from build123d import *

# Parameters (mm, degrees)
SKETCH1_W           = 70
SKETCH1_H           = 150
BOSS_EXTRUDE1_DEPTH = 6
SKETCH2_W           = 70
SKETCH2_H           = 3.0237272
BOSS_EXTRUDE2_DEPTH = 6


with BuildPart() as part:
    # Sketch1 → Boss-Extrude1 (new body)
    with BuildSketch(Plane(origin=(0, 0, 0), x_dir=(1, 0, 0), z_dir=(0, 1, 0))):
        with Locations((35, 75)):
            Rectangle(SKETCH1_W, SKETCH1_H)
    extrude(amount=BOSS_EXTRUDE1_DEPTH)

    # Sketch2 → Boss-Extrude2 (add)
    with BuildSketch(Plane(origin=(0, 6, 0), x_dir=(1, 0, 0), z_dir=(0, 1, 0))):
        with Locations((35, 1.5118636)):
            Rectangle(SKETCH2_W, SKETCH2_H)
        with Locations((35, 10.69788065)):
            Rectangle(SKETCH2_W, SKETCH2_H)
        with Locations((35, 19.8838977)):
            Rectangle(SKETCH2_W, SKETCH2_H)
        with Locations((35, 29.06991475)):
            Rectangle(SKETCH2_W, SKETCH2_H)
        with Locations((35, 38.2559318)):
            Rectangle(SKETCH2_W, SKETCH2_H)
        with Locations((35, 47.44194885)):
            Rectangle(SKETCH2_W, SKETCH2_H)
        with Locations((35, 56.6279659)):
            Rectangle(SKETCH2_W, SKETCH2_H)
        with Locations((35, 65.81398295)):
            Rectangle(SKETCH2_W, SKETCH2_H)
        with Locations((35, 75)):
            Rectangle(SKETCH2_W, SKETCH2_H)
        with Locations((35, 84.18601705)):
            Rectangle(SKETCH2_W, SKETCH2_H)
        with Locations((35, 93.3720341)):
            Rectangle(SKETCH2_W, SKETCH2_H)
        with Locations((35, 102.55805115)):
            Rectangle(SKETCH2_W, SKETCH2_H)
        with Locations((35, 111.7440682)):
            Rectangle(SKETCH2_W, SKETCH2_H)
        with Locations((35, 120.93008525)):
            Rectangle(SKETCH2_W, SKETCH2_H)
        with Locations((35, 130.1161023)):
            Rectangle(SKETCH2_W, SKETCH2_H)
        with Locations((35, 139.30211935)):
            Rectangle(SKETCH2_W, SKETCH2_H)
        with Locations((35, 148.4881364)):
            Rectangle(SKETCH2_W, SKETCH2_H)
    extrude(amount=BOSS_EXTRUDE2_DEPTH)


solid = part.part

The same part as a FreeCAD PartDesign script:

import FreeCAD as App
import Part
import Sketcher

V = App.Vector

doc = App.newDocument("Part")
body = doc.addObject("PartDesign::Body", "Body")

sketch1 = doc.addObject("Sketcher::SketchObject", "Sketch")
body.addObject(sketch1)
sketch1.AttachmentSupport = (doc.XZ_Plane, [""])
sketch1.MapMode = "FlatFace"
sketch1.addGeometry([
    Part.LineSegment(V(0, -150, 0), V(0, 0, 0)),
    Part.LineSegment(V(0, 0, 0), V(70, 0, 0)),
    Part.LineSegment(V(70, 0, 0), V(70, -150, 0)),
    Part.LineSegment(V(70, -150, 0), V(0, -150, 0)),
], False)
sketch1.addConstraint([
    Sketcher.Constraint("Coincident", 0, 2, 1, 1),
    Sketcher.Constraint("Coincident", 1, 2, 2, 1),
    Sketcher.Constraint("Coincident", 2, 2, 3, 1),
    Sketcher.Constraint("Coincident", 3, 2, 0, 1),
    Sketcher.Constraint("Vertical", 0),
    Sketcher.Constraint("Horizontal", 1),
    Sketcher.Constraint("Vertical", 2),
    Sketcher.Constraint("Horizontal", 3),
    Sketcher.Constraint("Coincident", 0, 2, -1, 1),
    Sketcher.Constraint("DistanceX", 1, 1, 1, 2, 70.0),
    Sketcher.Constraint("DistanceY", 0, 1, 0, 2, 150.0),
])
pad1 = doc.addObject("PartDesign::Pad", "Pad")
body.addObject(pad1)
pad1.Profile = sketch1
pad1.Length = 6
pad1.Reversed = True

sketch2 = doc.addObject("Sketcher::SketchObject", "Sketch001")
body.addObject(sketch2)
sketch2.AttachmentSupport = (doc.XZ_Plane, [""])
sketch2.MapMode = "FlatFace"
sketch2.AttachmentOffset = App.Placement(V(0, 0, -6), App.Rotation())
sketch2.addGeometry([
    Part.LineSegment(V(0, -3.023727, 0), V(0, 0, 0)),
    Part.LineSegment(V(0, 0, 0), V(70, 0, 0)),
    Part.LineSegment(V(70, 0, 0), V(70, -3.023727, 0)),
    Part.LineSegment(V(70, -3.023727, 0), V(0, -3.023727, 0)),
    Part.LineSegment(V(0, -12.209744, 0), V(0, -9.186017, 0)),
    Part.LineSegment(V(0, -9.186017, 0), V(70, -9.186017, 0)),
    Part.LineSegment(V(70, -9.186017, 0), V(70, -12.209744, 0)),
    Part.LineSegment(V(70, -12.209744, 0), V(0, -12.209744, 0)),
    Part.LineSegment(V(0, -21.395761, 0), V(0, -18.372034, 0)),
    Part.LineSegment(V(0, -18.372034, 0), V(70, -18.372034, 0)),
    Part.LineSegment(V(70, -18.372034, 0), V(70, -21.395761, 0)),
    Part.LineSegment(V(70, -21.395761, 0), V(0, -21.395761, 0)),
    Part.LineSegment(V(0, -30.581778, 0), V(0, -27.558051, 0)),
    Part.LineSegment(V(0, -27.558051, 0), V(70, -27.558051, 0)),
    Part.LineSegment(V(70, -27.558051, 0), V(70, -30.581778, 0)),
    Part.LineSegment(V(70, -30.581778, 0), V(0, -30.581778, 0)),
    Part.LineSegment(V(0, -39.767795, 0), V(0, -36.744068, 0)),
    Part.LineSegment(V(0, -36.744068, 0), V(70, -36.744068, 0)),
    Part.LineSegment(V(70, -36.744068, 0), V(70, -39.767795, 0)),
    Part.LineSegment(V(70, -39.767795, 0), V(0, -39.767795, 0)),
    Part.LineSegment(V(0, -48.953812, 0), V(0, -45.930085, 0)),
    Part.LineSegment(V(0, -45.930085, 0), V(70, -45.930085, 0)),
    Part.LineSegment(V(70, -45.930085, 0), V(70, -48.953812, 0)),
    Part.LineSegment(V(70, -48.953812, 0), V(0, -48.953812, 0)),
    Part.LineSegment(V(0, -58.139829, 0), V(0, -55.116102, 0)),
    Part.LineSegment(V(0, -55.116102, 0), V(70, -55.116102, 0)),
    Part.LineSegment(V(70, -55.116102, 0), V(70, -58.139829, 0)),
    Part.LineSegment(V(70, -58.139829, 0), V(0, -58.139829, 0)),
    Part.LineSegment(V(0, -67.325847, 0), V(0, -64.302119, 0)),
    Part.LineSegment(V(0, -64.302119, 0), V(70, -64.302119, 0)),
    Part.LineSegment(V(70, -64.302119, 0), V(70, -67.325847, 0)),
    Part.LineSegment(V(70, -67.325847, 0), V(0, -67.325847, 0)),
    Part.LineSegment(V(0, -76.511864, 0), V(0, -73.488136, 0)),
    Part.LineSegment(V(0, -73.488136, 0), V(70, -73.488136, 0)),
    Part.LineSegment(V(70, -73.488136, 0), V(70, -76.511864, 0)),
    Part.LineSegment(V(70, -76.511864, 0), V(0, -76.511864, 0)),
    Part.LineSegment(V(0, -85.697881, 0), V(0, -82.674153, 0)),
    Part.LineSegment(V(0, -82.674153, 0), V(70, -82.674153, 0)),
    Part.LineSegment(V(70, -82.674153, 0), V(70, -85.697881, 0)),
    Part.LineSegment(V(70, -85.697881, 0), V(0, -85.697881, 0)),
    Part.LineSegment(V(0, -94.883898, 0), V(0, -91.86017, 0)),
    Part.LineSegment(V(0, -91.86017, 0), V(70, -91.86017, 0)),
    Part.LineSegment(V(70, -91.86017, 0), V(70, -94.883898, 0)),
    Part.LineSegment(V(70, -94.883898, 0), V(0, -94.883898, 0)),
    Part.LineSegment(V(0, -104.069915, 0), V(0, -101.046188, 0)),
    Part.LineSegment(V(0, -101.046188, 0), V(70, -101.046188, 0)),
    Part.LineSegment(V(70, -101.046188, 0), V(70, -104.069915, 0)),
    Part.LineSegment(V(70, -104.069915, 0), V(0, -104.069915, 0)),
    Part.LineSegment(V(0, -113.255932, 0), V(0, -110.232205, 0)),
    Part.LineSegment(V(0, -110.232205, 0), V(70, -110.232205, 0)),
    Part.LineSegment(V(70, -110.232205, 0), V(70, -113.255932, 0)),
    Part.LineSegment(V(70, -113.255932, 0), V(0, -113.255932, 0)),
    Part.LineSegment(V(0, -122.441949, 0), V(0, -119.418222, 0)),
    Part.LineSegment(V(0, -119.418222, 0), V(70, -119.418222, 0)),
    Part.LineSegment(V(70, -119.418222, 0), V(70, -122.441949, 0)),
    Part.LineSegment(V(70, -122.441949, 0), V(0, -122.441949, 0)),
    Part.LineSegment(V(0, -131.627966, 0), V(0, -128.604239, 0)),
    Part.LineSegment(V(0, -128.604239, 0), V(70, -128.604239, 0)),
    Part.LineSegment(V(70, -128.604239, 0), V(70, -131.627966, 0)),
    Part.LineSegment(V(70, -131.627966, 0), V(0, -131.627966, 0)),
    Part.LineSegment(V(0, -140.813983, 0), V(0, -137.790256, 0)),
    Part.LineSegment(V(0, -137.790256, 0), V(70, -137.790256, 0)),
    Part.LineSegment(V(70, -137.790256, 0), V(70, -140.813983, 0)),
    Part.LineSegment(V(70, -140.813983, 0), V(0, -140.813983, 0)),
    Part.LineSegment(V(0, -150, 0), V(0, -146.976273, 0)),
    Part.LineSegment(V(0, -146.976273, 0), V(70, -146.976273, 0)),
    Part.LineSegment(V(70, -146.976273, 0), V(70, -150, 0)),
    Part.LineSegment(V(70, -150, 0), V(0, -150, 0)),
], False)
sketch2.addConstraint([
    Sketcher.Constraint("Coincident", 0, 2, 1, 1),
    Sketcher.Constraint("Coincident", 1, 2, 2, 1),
    Sketcher.Constraint("Coincident", 2, 2, 3, 1),
    Sketcher.Constraint("Coincident", 3, 2, 0, 1),
    Sketcher.Constraint("Coincident", 4, 2, 5, 1),
    Sketcher.Constraint("Coincident", 5, 2, 6, 1),
    Sketcher.Constraint("Coincident", 6, 2, 7, 1),
    Sketcher.Constraint("Coincident", 7, 2, 4, 1),
    Sketcher.Constraint("Coincident", 8, 2, 9, 1),
    Sketcher.Constraint("Coincident", 9, 2, 10, 1),
    Sketcher.Constraint("Coincident", 10, 2, 11, 1),
    Sketcher.Constraint("Coincident", 11, 2, 8, 1),
    Sketcher.Constraint("Coincident", 12, 2, 13, 1),
    Sketcher.Constraint("Coincident", 13, 2, 14, 1),
    Sketcher.Constraint("Coincident", 14, 2, 15, 1),
    Sketcher.Constraint("Coincident", 15, 2, 12, 1),
    Sketcher.Constraint("Coincident", 16, 2, 17, 1),
    Sketcher.Constraint("Coincident", 17, 2, 18, 1),
    Sketcher.Constraint("Coincident", 18, 2, 19, 1),
    Sketcher.Constraint("Coincident", 19, 2, 16, 1),
    Sketcher.Constraint("Coincident", 20, 2, 21, 1),
    Sketcher.Constraint("Coincident", 21, 2, 22, 1),
    Sketcher.Constraint("Coincident", 22, 2, 23, 1),
    Sketcher.Constraint("Coincident", 23, 2, 20, 1),
    Sketcher.Constraint("Coincident", 24, 2, 25, 1),
    Sketcher.Constraint("Coincident", 25, 2, 26, 1),
    Sketcher.Constraint("Coincident", 26, 2, 27, 1),
    Sketcher.Constraint("Coincident", 27, 2, 24, 1),
    Sketcher.Constraint("Coincident", 28, 2, 29, 1),
    Sketcher.Constraint("Coincident", 29, 2, 30, 1),
    Sketcher.Constraint("Coincident", 30, 2, 31, 1),
    Sketcher.Constraint("Coincident", 31, 2, 28, 1),
    Sketcher.Constraint("Coincident", 32, 2, 33, 1),
    Sketcher.Constraint("Coincident", 33, 2, 34, 1),
    Sketcher.Constraint("Coincident", 34, 2, 35, 1),
    Sketcher.Constraint("Coincident", 35, 2, 32, 1),
    Sketcher.Constraint("Coincident", 36, 2, 37, 1),
    Sketcher.Constraint("Coincident", 37, 2, 38, 1),
    Sketcher.Constraint("Coincident", 38, 2, 39, 1),
    Sketcher.Constraint("Coincident", 39, 2, 36, 1),
    Sketcher.Constraint("Coincident", 40, 2, 41, 1),
    Sketcher.Constraint("Coincident", 41, 2, 42, 1),
    Sketcher.Constraint("Coincident", 42, 2, 43, 1),
    Sketcher.Constraint("Coincident", 43, 2, 40, 1),
    Sketcher.Constraint("Coincident", 44, 2, 45, 1),
    Sketcher.Constraint("Coincident", 45, 2, 46, 1),
    Sketcher.Constraint("Coincident", 46, 2, 47, 1),
    Sketcher.Constraint("Coincident", 47, 2, 44, 1),
    Sketcher.Constraint("Coincident", 48, 2, 49, 1),
    Sketcher.Constraint("Coincident", 49, 2, 50, 1),
    Sketcher.Constraint("Coincident", 50, 2, 51, 1),
    Sketcher.Constraint("Coincident", 51, 2, 48, 1),
    Sketcher.Constraint("Coincident", 52, 2, 53, 1),
    Sketcher.Constraint("Coincident", 53, 2, 54, 1),
    Sketcher.Constraint("Coincident", 54, 2, 55, 1),
    Sketcher.Constraint("Coincident", 55, 2, 52, 1),
    Sketcher.Constraint("Coincident", 56, 2, 57, 1),
    Sketcher.Constraint("Coincident", 57, 2, 58, 1),
    Sketcher.Constraint("Coincident", 58, 2, 59, 1),
    Sketcher.Constraint("Coincident", 59, 2, 56, 1),
    Sketcher.Constraint("Coincident", 60, 2, 61, 1),
    Sketcher.Constraint("Coincident", 61, 2, 62, 1),
    Sketcher.Constraint("Coincident", 62, 2, 63, 1),
    Sketcher.Constraint("Coincident", 63, 2, 60, 1),
    Sketcher.Constraint("Coincident", 64, 2, 65, 1),
    Sketcher.Constraint("Coincident", 65, 2, 66, 1),
    Sketcher.Constraint("Coincident", 66, 2, 67, 1),
    Sketcher.Constraint("Coincident", 67, 2, 64, 1),
    Sketcher.Constraint("Vertical", 0),
    Sketcher.Constraint("Horizontal", 1),
    Sketcher.Constraint("Vertical", 2),
    Sketcher.Constraint("Horizontal", 3),
    Sketcher.Constraint("Vertical", 4),
    Sketcher.Constraint("Horizontal", 5),
    Sketcher.Constraint("Vertical", 6),
    Sketcher.Constraint("Horizontal", 7),
    Sketcher.Constraint("Vertical", 8),
    Sketcher.Constraint("Horizontal", 9),
    Sketcher.Constraint("Vertical", 10),
    Sketcher.Constraint("Horizontal", 11),
    Sketcher.Constraint("Vertical", 12),
    Sketcher.Constraint("Horizontal", 13),
    Sketcher.Constraint("Vertical", 14),
    Sketcher.Constraint("Horizontal", 15),
    Sketcher.Constraint("Vertical", 16),
    Sketcher.Constraint("Horizontal", 17),
    Sketcher.Constraint("Vertical", 18),
    Sketcher.Constraint("Horizontal", 19),
    Sketcher.Constraint("Vertical", 20),
    Sketcher.Constraint("Horizontal", 21),
    Sketcher.Constraint("Vertical", 22),
    Sketcher.Constraint("Horizontal", 23),
    Sketcher.Constraint("Vertical", 24),
    Sketcher.Constraint("Horizontal", 25),
    Sketcher.Constraint("Vertical", 26),
    Sketcher.Constraint("Horizontal", 27),
    Sketcher.Constraint("Vertical", 28),
    Sketcher.Constraint("Horizontal", 29),
    Sketcher.Constraint("Vertical", 30),
    Sketcher.Constraint("Horizontal", 31),
    Sketcher.Constraint("Vertical", 32),
    Sketcher.Constraint("Horizontal", 33),
    Sketcher.Constraint("Vertical", 34),
    Sketcher.Constraint("Horizontal", 35),
    Sketcher.Constraint("Vertical", 36),
    Sketcher.Constraint("Horizontal", 37),
    Sketcher.Constraint("Vertical", 38),
    Sketcher.Constraint("Horizontal", 39),
    Sketcher.Constraint("Vertical", 40),
    Sketcher.Constraint("Horizontal", 41),
    Sketcher.Constraint("Vertical", 42),
    Sketcher.Constraint("Horizontal", 43),
    Sketcher.Constraint("Vertical", 44),
    Sketcher.Constraint("Horizontal", 45),
    Sketcher.Constraint("Vertical", 46),
    Sketcher.Constraint("Horizontal", 47),
    Sketcher.Constraint("Vertical", 48),
    Sketcher.Constraint("Horizontal", 49),
    Sketcher.Constraint("Vertical", 50),
    Sketcher.Constraint("Horizontal", 51),
    Sketcher.Constraint("Vertical", 52),
    Sketcher.Constraint("Horizontal", 53),
    Sketcher.Constraint("Vertical", 54),
    Sketcher.Constraint("Horizontal", 55),
    Sketcher.Constraint("Vertical", 56),
    Sketcher.Constraint("Horizontal", 57),
    Sketcher.Constraint("Vertical", 58),
    Sketcher.Constraint("Horizontal", 59),
    Sketcher.Constraint("Vertical", 60),
    Sketcher.Constraint("Horizontal", 61),
    Sketcher.Constraint("Vertical", 62),
    Sketcher.Constraint("Horizontal", 63),
    Sketcher.Constraint("Vertical", 64),
    Sketcher.Constraint("Horizontal", 65),
    Sketcher.Constraint("Vertical", 66),
    Sketcher.Constraint("Horizontal", 67),
    Sketcher.Constraint("Coincident", 0, 2, -1, 1),
    Sketcher.Constraint("PointOnObject", 4, 2, -2),
    Sketcher.Constraint("PointOnObject", 8, 2, -2),
    Sketcher.Constraint("PointOnObject", 12, 2, -2),
    Sketcher.Constraint("PointOnObject", 16, 2, -2),
    Sketcher.Constraint("PointOnObject", 20, 2, -2),
    Sketcher.Constraint("PointOnObject", 24, 2, -2),
    Sketcher.Constraint("PointOnObject", 28, 2, -2),
    Sketcher.Constraint("PointOnObject", 32, 2, -2),
    Sketcher.Constraint("PointOnObject", 36, 2, -2),
    Sketcher.Constraint("PointOnObject", 40, 2, -2),
    Sketcher.Constraint("PointOnObject", 44, 2, -2),
    Sketcher.Constraint("PointOnObject", 48, 2, -2),
    Sketcher.Constraint("PointOnObject", 52, 2, -2),
    Sketcher.Constraint("PointOnObject", 56, 2, -2),
    Sketcher.Constraint("PointOnObject", 60, 2, -2),
    Sketcher.Constraint("PointOnObject", 64, 2, -2),
    Sketcher.Constraint("Vertical", 2, 2, 5, 2),
    Sketcher.Constraint("Vertical", 6, 2, 9, 2),
    Sketcher.Constraint("Vertical", 10, 2, 13, 2),
    Sketcher.Constraint("Vertical", 14, 2, 17, 2),
    Sketcher.Constraint("Vertical", 18, 2, 21, 2),
    Sketcher.Constraint("Vertical", 22, 2, 25, 2),
    Sketcher.Constraint("Vertical", 26, 2, 29, 2),
    Sketcher.Constraint("Vertical", 30, 2, 33, 2),
    Sketcher.Constraint("Vertical", 34, 2, 37, 2),
    Sketcher.Constraint("Vertical", 38, 2, 41, 2),
    Sketcher.Constraint("Vertical", 42, 2, 45, 2),
    Sketcher.Constraint("Vertical", 46, 2, 49, 2),
    Sketcher.Constraint("Vertical", 50, 2, 53, 2),
    Sketcher.Constraint("Vertical", 54, 2, 57, 2),
    Sketcher.Constraint("Vertical", 58, 2, 61, 2),
    Sketcher.Constraint("Vertical", 62, 2, 65, 2),
    Sketcher.Constraint("Equal", 2, 4),
    Sketcher.Constraint("Equal", 6, 8),
    Sketcher.Constraint("Equal", 10, 12),
    Sketcher.Constraint("Equal", 14, 16),
    Sketcher.Constraint("Equal", 18, 20),
    Sketcher.Constraint("Equal", 22, 24),
    Sketcher.Constraint("Equal", 26, 28),
    Sketcher.Constraint("Equal", 30, 32),
    Sketcher.Constraint("Equal", 34, 36),
    Sketcher.Constraint("Equal", 38, 40),
    Sketcher.Constraint("Equal", 42, 44),
    Sketcher.Constraint("Equal", 46, 48),
    Sketcher.Constraint("Equal", 50, 52),
    Sketcher.Constraint("Equal", 54, 56),
    Sketcher.Constraint("Equal", 58, 60),
    Sketcher.Constraint("Equal", 62, 64),
    Sketcher.Constraint("DistanceX", 1, 1, 1, 2, 70.0),
    Sketcher.Constraint("DistanceY", 66, 2, -1, 1, 150.0),
    Sketcher.Constraint("DistanceY", 0, 1, 0, 2, 3.023727),
    Sketcher.Constraint("DistanceY", 10, 2, -1, 1, 21.395761),
    Sketcher.Constraint("DistanceY", 12, 2, -1, 1, 27.558051),
    Sketcher.Constraint("DistanceY", 16, 2, -1, 1, 36.744068),
    Sketcher.Constraint("DistanceY", 26, 2, -1, 1, 58.139829),
    Sketcher.Constraint("DistanceY", 28, 2, -1, 1, 64.302119),
    Sketcher.Constraint("DistanceY", 38, 2, -1, 1, 85.697881),
    Sketcher.Constraint("DistanceY", 40, 2, -1, 1, 91.86017),
    Sketcher.Constraint("DistanceY", 50, 2, -1, 1, 113.255932),
    Sketcher.Constraint("DistanceY", 52, 2, -1, 1, 119.418222),
    Sketcher.Constraint("DistanceY", 56, 2, -1, 1, 128.604239),
    Sketcher.Constraint("DistanceY", 4, 2, -1, 1, 9.186017),
    Sketcher.Constraint("DistanceY", 20, 2, -1, 1, 45.930085),
    Sketcher.Constraint("DistanceY", 32, 2, -1, 1, 73.488136),
    Sketcher.Constraint("DistanceY", 44, 2, -1, 1, 101.046188),
    Sketcher.Constraint("DistanceY", 60, 2, -1, 1, 137.790256),
])
pad2 = doc.addObject("PartDesign::Pad", "Pad001")
body.addObject(pad2)
pad2.Profile = sketch2
pad2.Length = 6
pad2.Reversed = True

doc.recompute()
